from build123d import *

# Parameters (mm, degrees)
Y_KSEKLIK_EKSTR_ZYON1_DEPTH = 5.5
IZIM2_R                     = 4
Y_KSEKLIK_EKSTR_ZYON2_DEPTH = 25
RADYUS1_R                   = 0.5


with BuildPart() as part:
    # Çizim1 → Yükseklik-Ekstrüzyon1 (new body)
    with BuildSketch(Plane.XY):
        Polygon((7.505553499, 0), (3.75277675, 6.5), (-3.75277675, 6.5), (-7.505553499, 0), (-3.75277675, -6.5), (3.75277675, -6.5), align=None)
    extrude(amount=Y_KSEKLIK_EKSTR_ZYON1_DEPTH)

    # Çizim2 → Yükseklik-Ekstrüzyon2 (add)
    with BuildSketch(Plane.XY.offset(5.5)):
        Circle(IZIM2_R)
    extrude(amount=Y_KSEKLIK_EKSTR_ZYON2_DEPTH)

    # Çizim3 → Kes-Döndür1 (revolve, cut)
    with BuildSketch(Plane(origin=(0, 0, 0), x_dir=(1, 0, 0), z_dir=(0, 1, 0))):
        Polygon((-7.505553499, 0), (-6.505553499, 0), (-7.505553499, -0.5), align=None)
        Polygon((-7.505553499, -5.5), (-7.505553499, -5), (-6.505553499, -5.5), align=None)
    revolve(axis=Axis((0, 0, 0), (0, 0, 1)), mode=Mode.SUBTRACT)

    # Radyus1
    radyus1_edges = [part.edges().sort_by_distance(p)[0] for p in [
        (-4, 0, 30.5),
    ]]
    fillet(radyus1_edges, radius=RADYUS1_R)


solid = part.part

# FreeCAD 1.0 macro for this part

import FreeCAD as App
import Part
import Sketcher

V = App.Vector
Q = App.Units.Quantity


def edges_at(feature, points):
    """Names of the edges that pass closest to the given points."""
    edges = feature.Shape.Edges
    near = lambda p: min(range(len(edges)), key=lambda i: edges[i].distToShape(Part.Vertex(*p))[0])
    return sorted({f"Edge{near(p) + 1}" for p in points})


def add_polygon(sketch, points):
    """Adds a closed chain of lines whose ends are joined by coincident constraints."""
    first, n = sketch.GeometryCount, len(points)
    for a, b in zip(points, points[1:] + points[:1]):
        sketch.addGeometry(Part.LineSegment(App.Vector(*a, 0), App.Vector(*b, 0)), False)
    for i in range(n):
        sketch.addConstraint(Sketcher.Constraint("Coincident", first + i, 2, first + (i + 1) % n, 1))

doc = App.newDocument("Part")
params = doc.addObject("Spreadsheet::Sheet", "Params")
for row, (alias, value) in enumerate([
    ("pad1_length", "5.5 mm"),
    ("sketch2_diameter", "8 mm"),
    ("pad2_length", "25 mm"),
    ("sketch3_width", "1 mm"),
    ("sketch3_height", "0.5 mm"),
    ("groove_angle", "360 deg"),
    ("fillet_radius", "0.5 mm"),
], start=1):
    params.set(f"A{row}", alias)
    params.set(f"B{row}", "=" + value)
    params.setAlias(f"B{row}", alias)

body = doc.addObject("PartDesign::Body", "Body")

# Sketch on XY plane
sketch1 = body.newObject("Sketcher::SketchObject", "Sketch")
sketch1.AttachmentSupport = (doc.getObject("XY_Plane"), [""])
sketch1.MapMode = "FlatFace"
add_polygon(sketch1, [(7.505553, 0), (3.752777, 6.5), (-3.752777, 6.5), (-7.505553, 0), (-3.752777, -6.5), (3.752777, -6.5)])  # lines 0-5
sketch1.addConstraint(Sketcher.Constraint("Horizontal", 1))
sketch1.addConstraint(Sketcher.Constraint("Horizontal", 4))
sketch1.addConstraint(Sketcher.Constraint("Symmetric", 0, 2, 3, 2, -1, 1))
sketch1.addConstraint(Sketcher.Constraint("Symmetric", 2, 2, 5, 2, -1, 1))
sketch1.addConstraint(Sketcher.Constraint("PointOnObject", 2, 2, -1))
sketch1.addConstraint(Sketcher.Constraint("Parallel", 2, 5))
sketch1.addConstraint(Sketcher.Constraint("Vertical", 1, 2, 3, 2))
sketch1.addConstraint(Sketcher.Constraint("Angle", 0, Q("120 deg")))
sketch1.addConstraint(Sketcher.Constraint("DistanceY", 3, 2, 1, 2, Q("13 mm")))
sketch1.addConstraint(Sketcher.Constraint("DistanceX", 1, 2, 1, 1, Q("7.505554 mm")))
pad1 = body.newObject("PartDesign::Pad", "Pad")
pad1.Profile = sketch1
pad1.setExpression("Length", "Params.pad1_length")

# Sketch on XY plane
sketch2 = body.newObject("Sketcher::SketchObject", "Sketch001")
sketch2.AttachmentSupport = (doc.getObject("XY_Plane"), [""])
sketch2.MapMode = "FlatFace"
sketch2.AttachmentOffset = App.Placement(V(0, 0, 5.5), App.Rotation())
sketch2.addGeometry(Part.Circle(V(0, 0, 0), V(0, 0, 1), 4), False)
sketch2.addConstraint(Sketcher.Constraint("Coincident", 0, 3, -1, 1))
sketch2.addConstraint(Sketcher.Constraint("Diameter", 0, Q("8 mm")))
sketch2.setExpression("Constraints[1]", "Params.sketch2_diameter")
pad2 = body.newObject("PartDesign::Pad", "Pad001")
pad2.Profile = sketch2
pad2.setExpression("Length", "Params.pad2_length")

# Sketch on XZ plane
sketch3 = body.newObject("Sketcher::SketchObject", "Sketch002")
sketch3.AttachmentSupport = (doc.getObject("XZ_Plane"), [""])
sketch3.MapMode = "FlatFace"
add_polygon(sketch3, [(-6.505553, 0), (-7.505553, 0), (-7.505553, 0.5)])  # lines 0-2
add_polygon(sketch3, [(-7.505553, 5), (-7.505553, 5.5), (-6.505553, 5.5)])  # lines 3-5
sketch3.addConstraint(Sketcher.Constraint("Horizontal", 0))
sketch3.addConstraint(Sketcher.Constraint("Vertical", 1))
sketch3.addConstraint(Sketcher.Constraint("Vertical", 3))
sketch3.addConstraint(Sketcher.Constraint("Horizontal", 4))
sketch3.addConstraint(Sketcher.Constraint("PointOnObject", 0, 2, -1))
sketch3.addConstraint(Sketcher.Constraint("Vertical", 1, 2, 3, 2))
sketch3.addConstraint(Sketcher.Constraint("Vertical", 2, 2, 4, 2))
sketch3.addConstraint(Sketcher.Constraint("Equal", 1, 3))
sketch3.addConstraint(Sketcher.Constraint("DistanceX", 0, 2, 0, 1, Q("1 mm")))
sketch3.addConstraint(Sketcher.Constraint("DistanceY", 1, 1, 1, 2, Q("0.5 mm")))
sketch3.addConstraint(Sketcher.Constraint("DistanceY", -1, 1, 5, 2, Q("5 mm")))
sketch3.addConstraint(Sketcher.Constraint("DistanceX", 0, 2, -1, 1, Q("7.505553 mm")))
sketch3.setExpression("Constraints[14]", "Params.sketch3_width")
sketch3.setExpression("Constraints[15]", "Params.sketch3_height")
groove = body.newObject("PartDesign::Groove", "Groove")
groove.Profile = sketch3
groove.ReferenceAxis = (sketch3, ["V_Axis"])
groove.setExpression("Angle", "Params.groove_angle")
doc.recompute()

fillet = body.newObject("PartDesign::Fillet", "Fillet")
fillet.Base = (groove, edges_at(groove, [(-4, 0, 30.5)]))
fillet.setExpression("Radius", "Params.fillet_radius")

doc.recompute()
